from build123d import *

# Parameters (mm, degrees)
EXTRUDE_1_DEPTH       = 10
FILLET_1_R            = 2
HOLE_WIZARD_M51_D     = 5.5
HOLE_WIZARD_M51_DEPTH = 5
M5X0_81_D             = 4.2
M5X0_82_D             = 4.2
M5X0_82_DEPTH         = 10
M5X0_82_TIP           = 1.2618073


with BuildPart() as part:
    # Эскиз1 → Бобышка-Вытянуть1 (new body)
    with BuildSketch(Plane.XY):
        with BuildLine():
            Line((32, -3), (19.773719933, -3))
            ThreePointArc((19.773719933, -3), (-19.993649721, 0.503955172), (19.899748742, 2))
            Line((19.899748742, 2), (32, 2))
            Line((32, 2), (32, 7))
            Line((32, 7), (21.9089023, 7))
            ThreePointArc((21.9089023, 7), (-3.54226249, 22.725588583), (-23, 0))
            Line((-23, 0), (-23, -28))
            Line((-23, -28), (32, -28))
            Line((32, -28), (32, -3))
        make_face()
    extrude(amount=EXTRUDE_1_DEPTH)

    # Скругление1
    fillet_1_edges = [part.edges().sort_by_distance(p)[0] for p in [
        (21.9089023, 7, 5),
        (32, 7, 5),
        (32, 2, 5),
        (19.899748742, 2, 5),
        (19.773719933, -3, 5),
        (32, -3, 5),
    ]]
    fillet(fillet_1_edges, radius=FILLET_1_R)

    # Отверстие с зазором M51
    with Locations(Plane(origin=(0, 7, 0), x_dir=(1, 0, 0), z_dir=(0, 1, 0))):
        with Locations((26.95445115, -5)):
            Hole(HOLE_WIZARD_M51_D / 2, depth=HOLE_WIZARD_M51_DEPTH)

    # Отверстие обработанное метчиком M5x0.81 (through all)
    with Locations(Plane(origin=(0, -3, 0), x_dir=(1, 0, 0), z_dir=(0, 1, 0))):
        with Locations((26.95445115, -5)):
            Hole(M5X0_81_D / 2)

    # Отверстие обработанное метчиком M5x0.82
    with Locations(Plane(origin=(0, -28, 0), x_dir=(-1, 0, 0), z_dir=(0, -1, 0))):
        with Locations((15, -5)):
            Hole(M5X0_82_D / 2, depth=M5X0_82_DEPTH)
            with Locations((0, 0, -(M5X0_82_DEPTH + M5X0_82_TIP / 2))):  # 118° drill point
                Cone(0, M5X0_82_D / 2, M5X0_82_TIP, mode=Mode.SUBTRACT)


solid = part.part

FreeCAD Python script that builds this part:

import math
import FreeCAD as App
import Part
import Sketcher
from FreeCAD import Vector
Q = App.Units.Quantity


def edges_at(feature, points):
    """Names of the edges that pass closest to the given points."""
    edges = feature.Shape.Edges
    near = lambda p: min(range(len(edges)), key=lambda i: edges[i].distToShape(Part.Vertex(*p))[0])
    return sorted({f"Edge{near(p) + 1}" for p in points})

doc = App.newDocument("Part")
body = doc.addObject("PartDesign::Body", "Body")

# Sketch on XY plane
sketch1 = doc.addObject("Sketcher::SketchObject", "Sketch")
body.addObject(sketch1)
sketch1.AttachmentSupport = (doc.XY_Plane, [""])
sketch1.MapMode = "FlatFace"
sketch1.addGeometry([
    Part.LineSegment(Vector(32, -3, 0), Vector(19.77372, -3, 0)),  # 0
    Part.ArcOfCircle(Part.Circle(Vector(0, 0, 0), Vector(0, 0, 1), 20), math.radians(5.73917), math.radians(351.373073)),  # 1
    Part.LineSegment(Vector(19.899749, 2, 0), Vector(32, 2, 0)),  # 2
    Part.LineSegment(Vector(32, 2, 0), Vector(32, 7, 0)),  # 3
    Part.LineSegment(Vector(32, 7, 0), Vector(21.908902, 7, 0)),  # 4
    Part.ArcOfCircle(Part.Circle(Vector(0, 0, 0), Vector(0, 0, 1), 23), math.radians(17.718932), math.radians(180)),  # 5
    Part.LineSegment(Vector(-23, 0, 0), Vector(-23, -28, 0)),  # 6
    Part.LineSegment(Vector(-23, -28, 0), Vector(32, -28, 0)),  # 7
    Part.LineSegment(Vector(32, -28, 0), Vector(32, -3, 0)),  # 8
], False)
sketch1.addConstraint([
    Sketcher.Constraint("Coincident", 0, 2, 1, 2),
    Sketcher.Constraint("Coincident", 1, 1, 2, 1),
    Sketcher.Constraint("Coincident", 2, 2, 3, 1),
    Sketcher.Constraint("Coincident", 3, 2, 4, 1),
    Sketcher.Constraint("Coincident", 4, 2, 5, 1),
    Sketcher.Constraint("Tangent", 5, 2, 6, 1),
    Sketcher.Constraint("Coincident", 6, 2, 7, 1),
    Sketcher.Constraint("Coincident", 7, 2, 8, 1),
    Sketcher.Constraint("Coincident", 8, 2, 0, 1),
    Sketcher.Constraint("Horizontal", 0),
    Sketcher.Constraint("Horizontal", 2),
    Sketcher.Constraint("Vertical", 3),
    Sketcher.Constraint("Horizontal", 4),
    Sketcher.Constraint("Vertical", 6),
    Sketcher.Constraint("Horizontal", 7),
    Sketcher.Constraint("Vertical", 8),
    Sketcher.Constraint("Coincident", 1, 3, -1, 1),
    Sketcher.Constraint("Coincident", 5, 3, -1, 1),
    Sketcher.Constraint("Vertical", 3, 2, 7, 2),
    Sketcher.Constraint("Radius", 1, Q("20 mm")),
    Sketcher.Constraint("Radius", 5, Q("23 mm")),
    Sketcher.Constraint("DistanceX", 7, 1, 7, 2, Q("55 mm")),
    Sketcher.Constraint("DistanceY", 3, 1, 3, 2, Q("5 mm")),
    Sketcher.Constraint("DistanceY", 6, 2, 6, 1, Q("28 mm")),
    Sketcher.Constraint("DistanceY", 8, 1, 8, 2, Q("25 mm")),
    Sketcher.Constraint("DistanceY", -1, 1, 1, 1, Q("2 mm")),
])
pad1 = doc.addObject("PartDesign::Pad", "Pad")
body.addObject(pad1)
pad1.Profile = sketch1
pad1.Length = 10
doc.recompute()

fillet = doc.addObject("PartDesign::Fillet", "Fillet")
body.addObject(fillet)
fillet.Base = (pad1, edges_at(pad1, [
    (21.909, 7, 5),
    (32, 7, 5),
    (32, 2, 5),
    (19.9, 2, 5),
    (19.774, -3, 5),
    (32, -3, 5),
]))
fillet.Radius = 2

# Sketch on XZ plane
sketch2 = doc.addObject("Sketcher::SketchObject", "Sketch001")
body.addObject(sketch2)
sketch2.AttachmentSupport = (doc.XZ_Plane, [""])
sketch2.MapMode = "FlatFace"
sketch2.AttachmentOffset = App.Placement(Vector(0, 0, -7), App.Rotation())
sketch2.addGeometry(Part.Circle(Vector(26.954451, 5, 0), Vector(0, 0, 1), 2.75), False)
sketch2.addConstraint([
    Sketcher.Constraint("Diameter", 0, Q("5.5 mm")),
    Sketcher.Constraint("DistanceY", -1, 1, 0, 3, Q("5 mm")),
    Sketcher.Constraint("DistanceX", -1, 1, 0, 3, Q("26.954451 mm")),
])
doc.recompute()
hole = doc.addObject("PartDesign::Hole", "Hole")
body.addObject(hole)
hole.Profile = sketch2
hole.ThreadType = "None"
hole.Diameter = 5.5
hole.DepthType = "Dimension"
hole.Depth = 5
hole.DrillPoint = "Flat"
hole.Reversed = True

# Sketch on XZ plane
sketch3 = doc.addObject("Sketcher::SketchObject", "Sketch002")
body.addObject(sketch3)
sketch3.AttachmentSupport = (doc.XZ_Plane, [""])
sketch3.MapMode = "FlatFace"
sketch3.AttachmentOffset = App.Placement(Vector(0, 0, 3), App.Rotation())
sketch3.addGeometry(Part.Circle(Vector(26.954451, 5, 0), Vector(0, 0, 1), 2.1), False)
sketch3.addConstraint([
    Sketcher.Constraint("Diameter", 0, Q("4.2 mm")),
    Sketcher.Constraint("DistanceY", -1, 1, 0, 3, Q("5 mm")),
    Sketcher.Constraint("DistanceX", -1, 1, 0, 3, Q("26.954451 mm")),
])
doc.recompute()
hole2 = doc.addObject("PartDesign::Hole", "Hole001")
body.addObject(hole2)
hole2.Profile = sketch3
hole2.ThreadType = "None"
hole2.Diameter = 4.2
hole2.DepthType = "ThroughAll"
hole2.Reversed = True

# Sketch on XZ plane
sketch4 = doc.addObject("Sketcher::SketchObject", "Sketch003")
body.addObject(sketch4)
sketch4.AttachmentSupport = (doc.XZ_Plane, [""])
sketch4.MapMode = "FlatFace"
sketch4.AttachmentOffset = App.Placement(Vector(0, 0, 28), App.Rotation())
sketch4.addGeometry(Part.Circle(Vector(-15, 5, 0), Vector(0, 0, 1), 2.1), False)
sketch4.addConstraint([
    Sketcher.Constraint("Diameter", 0, Q("4.2 mm")),
    Sketcher.Constraint("DistanceX", 0, 3, -1, 1, Q("15 mm")),
    Sketcher.Constraint("DistanceY", -1, 1, 0, 3, Q("5 mm")),
])
doc.recompute()
hole3 = doc.addObject("PartDesign::Hole", "Hole002")
body.addObject(hole3)
hole3.Profile = sketch4
hole3.ThreadType = "None"
hole3.Diameter = 4.2
hole3.DepthType = "Dimension"
hole3.Depth = 10
hole3.DrillPoint = "Angled"
hole3.DrillPointAngle = 118

doc.recompute()
